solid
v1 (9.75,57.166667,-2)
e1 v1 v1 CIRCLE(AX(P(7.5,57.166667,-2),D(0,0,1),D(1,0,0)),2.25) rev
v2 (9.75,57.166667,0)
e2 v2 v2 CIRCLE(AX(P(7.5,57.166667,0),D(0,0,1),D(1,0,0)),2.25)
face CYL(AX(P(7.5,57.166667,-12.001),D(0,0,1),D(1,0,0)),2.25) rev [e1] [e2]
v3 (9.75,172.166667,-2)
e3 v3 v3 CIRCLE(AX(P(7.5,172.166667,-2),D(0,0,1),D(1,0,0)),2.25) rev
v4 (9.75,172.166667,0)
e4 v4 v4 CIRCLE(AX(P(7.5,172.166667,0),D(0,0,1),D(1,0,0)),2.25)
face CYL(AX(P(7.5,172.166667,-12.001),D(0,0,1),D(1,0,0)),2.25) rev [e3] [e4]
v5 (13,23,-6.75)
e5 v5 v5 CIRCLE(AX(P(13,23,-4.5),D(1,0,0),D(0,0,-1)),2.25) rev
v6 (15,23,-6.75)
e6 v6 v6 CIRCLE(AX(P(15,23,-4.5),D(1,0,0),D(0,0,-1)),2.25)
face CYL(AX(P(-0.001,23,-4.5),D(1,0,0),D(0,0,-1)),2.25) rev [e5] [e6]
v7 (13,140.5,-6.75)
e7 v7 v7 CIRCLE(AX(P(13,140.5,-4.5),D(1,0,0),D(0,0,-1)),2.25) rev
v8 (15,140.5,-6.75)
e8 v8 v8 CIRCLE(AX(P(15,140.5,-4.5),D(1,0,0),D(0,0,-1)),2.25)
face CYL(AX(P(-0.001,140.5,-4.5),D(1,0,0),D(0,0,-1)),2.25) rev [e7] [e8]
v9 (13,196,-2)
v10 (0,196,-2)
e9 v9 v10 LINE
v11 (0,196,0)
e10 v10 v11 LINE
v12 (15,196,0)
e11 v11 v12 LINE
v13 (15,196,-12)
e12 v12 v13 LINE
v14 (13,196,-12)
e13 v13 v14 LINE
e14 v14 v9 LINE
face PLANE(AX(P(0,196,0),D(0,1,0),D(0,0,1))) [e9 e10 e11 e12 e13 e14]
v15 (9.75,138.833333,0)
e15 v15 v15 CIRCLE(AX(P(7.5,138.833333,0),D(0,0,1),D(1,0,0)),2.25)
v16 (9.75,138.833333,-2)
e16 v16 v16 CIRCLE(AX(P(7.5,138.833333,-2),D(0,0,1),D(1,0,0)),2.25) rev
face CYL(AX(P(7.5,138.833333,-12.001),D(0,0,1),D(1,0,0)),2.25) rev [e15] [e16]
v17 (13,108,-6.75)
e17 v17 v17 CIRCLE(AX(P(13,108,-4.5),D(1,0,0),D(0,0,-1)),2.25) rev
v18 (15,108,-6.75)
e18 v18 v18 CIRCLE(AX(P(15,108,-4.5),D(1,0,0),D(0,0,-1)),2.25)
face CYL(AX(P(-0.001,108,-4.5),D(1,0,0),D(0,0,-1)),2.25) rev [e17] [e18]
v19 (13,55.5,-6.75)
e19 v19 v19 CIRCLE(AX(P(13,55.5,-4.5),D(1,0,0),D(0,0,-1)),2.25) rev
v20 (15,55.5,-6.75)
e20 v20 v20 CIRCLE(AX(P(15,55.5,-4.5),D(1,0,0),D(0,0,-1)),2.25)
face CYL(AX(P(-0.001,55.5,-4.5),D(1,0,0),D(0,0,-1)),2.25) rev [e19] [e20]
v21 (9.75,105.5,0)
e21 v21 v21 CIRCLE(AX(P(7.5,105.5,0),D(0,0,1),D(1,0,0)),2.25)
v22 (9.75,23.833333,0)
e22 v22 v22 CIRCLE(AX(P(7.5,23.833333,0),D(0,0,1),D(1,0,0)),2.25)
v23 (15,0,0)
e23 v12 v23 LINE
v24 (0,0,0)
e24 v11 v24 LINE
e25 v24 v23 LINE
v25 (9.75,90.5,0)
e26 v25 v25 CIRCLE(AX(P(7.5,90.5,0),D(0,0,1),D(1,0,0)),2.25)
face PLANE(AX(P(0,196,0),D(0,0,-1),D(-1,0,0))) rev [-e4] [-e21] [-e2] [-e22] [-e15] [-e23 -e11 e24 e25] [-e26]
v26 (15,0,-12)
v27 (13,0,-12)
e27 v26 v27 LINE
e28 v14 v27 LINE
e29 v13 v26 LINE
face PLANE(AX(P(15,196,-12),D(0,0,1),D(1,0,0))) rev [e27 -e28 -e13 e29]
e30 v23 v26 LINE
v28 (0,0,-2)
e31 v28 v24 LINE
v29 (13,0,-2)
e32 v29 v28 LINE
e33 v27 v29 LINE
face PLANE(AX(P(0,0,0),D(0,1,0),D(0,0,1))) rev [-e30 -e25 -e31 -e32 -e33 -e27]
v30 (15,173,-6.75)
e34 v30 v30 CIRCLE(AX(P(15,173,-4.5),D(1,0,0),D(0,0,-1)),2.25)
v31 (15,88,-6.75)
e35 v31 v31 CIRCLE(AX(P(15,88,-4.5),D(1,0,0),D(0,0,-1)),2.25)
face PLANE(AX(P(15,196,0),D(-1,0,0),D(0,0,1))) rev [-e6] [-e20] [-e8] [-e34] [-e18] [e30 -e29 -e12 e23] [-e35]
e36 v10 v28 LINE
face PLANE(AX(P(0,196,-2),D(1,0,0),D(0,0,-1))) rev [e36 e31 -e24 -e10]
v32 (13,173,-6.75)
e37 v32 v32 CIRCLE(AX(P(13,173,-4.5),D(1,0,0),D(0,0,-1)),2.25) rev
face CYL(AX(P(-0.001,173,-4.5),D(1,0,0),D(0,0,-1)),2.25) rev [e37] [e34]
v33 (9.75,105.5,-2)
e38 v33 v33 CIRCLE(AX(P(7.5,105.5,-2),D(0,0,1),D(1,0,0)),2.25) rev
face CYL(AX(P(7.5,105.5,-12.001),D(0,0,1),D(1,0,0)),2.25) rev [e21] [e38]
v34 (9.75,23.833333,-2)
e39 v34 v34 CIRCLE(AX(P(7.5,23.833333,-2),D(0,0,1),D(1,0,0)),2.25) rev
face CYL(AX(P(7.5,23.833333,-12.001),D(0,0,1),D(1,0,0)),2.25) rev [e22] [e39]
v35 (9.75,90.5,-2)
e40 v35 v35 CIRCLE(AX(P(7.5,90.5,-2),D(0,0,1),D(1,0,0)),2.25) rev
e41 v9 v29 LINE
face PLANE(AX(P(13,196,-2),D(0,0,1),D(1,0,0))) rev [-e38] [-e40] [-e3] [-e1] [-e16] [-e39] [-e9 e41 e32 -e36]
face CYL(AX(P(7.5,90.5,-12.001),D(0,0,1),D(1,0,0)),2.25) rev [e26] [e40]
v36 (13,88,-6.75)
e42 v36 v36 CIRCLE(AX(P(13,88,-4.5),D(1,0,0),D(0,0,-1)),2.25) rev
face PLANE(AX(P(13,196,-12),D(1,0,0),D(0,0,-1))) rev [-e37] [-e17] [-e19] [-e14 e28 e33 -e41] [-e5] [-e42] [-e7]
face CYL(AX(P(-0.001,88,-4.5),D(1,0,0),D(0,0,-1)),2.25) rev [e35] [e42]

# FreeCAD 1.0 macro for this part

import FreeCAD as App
import Part
import Sketcher
from FreeCAD import Vector


def add_polygon(sketch, points):
    """Adds a closed chain of lines whose ends are joined by coincident constraints."""
    first, n = sketch.GeometryCount, len(points)
    for a, b in zip(points, points[1:] + points[:1]):
        sketch.addGeometry(Part.LineSegment(App.Vector(*a, 0), App.Vector(*b, 0)), False)
    for i in range(n):
        sketch.addConstraint(Sketcher.Constraint("Coincident", first + i, 2, first + (i + 1) % n, 1))

doc = App.newDocument("Part")
body = doc.addObject("PartDesign::Body", "Body")

sketch1 = body.newObject("Sketcher::SketchObject", "Sketch")
sketch1.AttachmentSupport = (doc.getObject("XZ_Plane"), [""])
sketch1.MapMode = "FlatFace"
add_polygon(sketch1, [(0, 0), (15, 0), (15, -12), (13, -12), (13, -2), (0, -2)])
sketch1.addConstraint(Sketcher.Constraint("Horizontal", 0))
sketch1.addConstraint(Sketcher.Constraint("Vertical", 1))
sketch1.addConstraint(Sketcher.Constraint("Horizontal", 2))
sketch1.addConstraint(Sketcher.Constraint("Vertical", 3))
sketch1.addConstraint(Sketcher.Constraint("Horizontal", 4))
sketch1.addConstraint(Sketcher.Constraint("Vertical", 5))
sketch1.addConstraint(Sketcher.Constraint("Coincident", 5, 2, -1, 1))
sketch1.addConstraint(Sketcher.Constraint("Equal", 2, 5))
sketch1.addConstraint(Sketcher.Constraint("DistanceX", 0, 1, 0, 2, 15.0))
sketch1.addConstraint(Sketcher.Constraint("DistanceX", 2, 2, 2, 1, 2.0))
sketch1.addConstraint(Sketcher.Constraint("DistanceY", 1, 2, 1, 1, 12.0))
pad1 = body.newObject("PartDesign::Pad", "Pad")
pad1.Profile = sketch1
pad1.Length = 196
pad1.Reversed = True

sketch2 = body.newObject("Sketcher::SketchObject", "Sketch001")
sketch2.AttachmentSupport = (doc.getObject("YZ_Plane"), [""])
sketch2.MapMode = "FlatFace"
sketch2.AttachmentOffset = App.Placement(Vector(0, 0, 15), App.Rotation())
sketch2.addGeometry(Part.Circle(Vector(23, -4.5, 0), Vector(0, 0, 1), 2.2), False)
sketch2.addConstraint(Sketcher.Constraint("Diameter", 0, 4.5))
sketch2.addConstraint(Sketcher.Constraint("DistanceX", -1, 1, 0, 3, 23.0))
sketch2.addConstraint(Sketcher.Constraint("DistanceY", 0, 3, -1, 1, 4.5))
pocket1 = body.newObject("PartDesign::Pocket", "Pocket")
pocket1.Profile = sketch2
pocket1.Type = "UpToFirst"

sketch3 = body.newObject("Sketcher::SketchObject", "Sketch002")
sketch3.AttachmentSupport = (doc.getObject("YZ_Plane"), [""])
sketch3.MapMode = "FlatFace"
sketch3.AttachmentOffset = App.Placement(Vector(0, 0, 15), App.Rotation())
sketch3.addGeometry(Part.Circle(Vector(55.5, -4.5, 0), Vector(0, 0, 1), 2.2), False)
sketch3.addConstraint(Sketcher.Constraint("Diameter", 0, 4.5))
sketch3.addConstraint(Sketcher.Constraint("DistanceX", -1, 1, 0, 3, 55.5))
sketch3.addConstraint(Sketcher.Constraint("DistanceY", 0, 3, -1, 1, 4.5))
pocket2 = body.newObject("PartDesign::Pocket", "Pocket001")
pocket2.Profile = sketch3
pocket2.Type = "UpToFirst"

sketch4 = body.newObject("Sketcher::SketchObject", "Sketch003")
sketch4.AttachmentSupport = (doc.getObject("YZ_Plane"), [""])
sketch4.MapMode = "FlatFace"
sketch4.AttachmentOffset = App.Placement(Vector(0, 0, 15), App.Rotation())
sketch4.addGeometry(Part.Circle(Vector(88, -4.5, 0), Vector(0, 0, 1), 2.2), False)
sketch4.addConstraint(Sketcher.Constraint("Diameter", 0, 4.5))
sketch4.addConstraint(Sketcher.Constraint("DistanceX", -1, 1, 0, 3, 88.0))
sketch4.addConstraint(Sketcher.Constraint("DistanceY", 0, 3, -1, 1, 4.5))
pocket3 = body.newObject("PartDesign::Pocket", "Pocket002")
pocket3.Profile = sketch4
pocket3.Type = "UpToFirst"

sketch5 = body.newObject("Sketcher::SketchObject", "Sketch004")
sketch5.AttachmentSupport = (doc.getObject("YZ_Plane"), [""])
sketch5.MapMode = "FlatFace"
sketch5.AttachmentOffset = App.Placement(Vector(0, 0, 15), App.Rotation())
sketch5.addGeometry(Part.Circle(Vector(108, -4.5, 0), Vector(0, 0, 1), 2.2), False)
sketch5.addConstraint(Sketcher.Constraint("Diameter", 0, 4.5))
sketch5.addConstraint(Sketcher.Constraint("DistanceX", -1, 1, 0, 3, 108.0))
sketch5.addConstraint(Sketcher.Constraint("DistanceY", 0, 3, -1, 1, 4.5))
pocket4 = body.newObject("PartDesign::Pocket", "Pocket003")
pocket4.Profile = sketch5
pocket4.Type = "UpToFirst"

sketch6 = body.newObject("Sketcher::SketchObject", "Sketch005")
sketch6.AttachmentSupport = (doc.getObject("YZ_Plane"), [""])
sketch6.MapMode = "FlatFace"
sketch6.AttachmentOffset = App.Placement(Vector(0, 0, 15), App.Rotation())
sketch6.addGeometry(Part.Circle(Vector(140.5, -4.5, 0), Vector(0, 0, 1), 2.2), False)
sketch6.addConstraint(Sketcher.Constraint("Diameter", 0, 4.5))
sketch6.addConstraint(Sketcher.Constraint("DistanceX", -1, 1, 0, 3, 140.5))
sketch6.addConstraint(Sketcher.Constraint("DistanceY", 0, 3, -1, 1, 4.5))
pocket5 = body.newObject("PartDesign::Pocket", "Pocket004")
pocket5.Profile = sketch6
pocket5.Type = "UpToFirst"

sketch7 = body.newObject("Sketcher::SketchObject", "Sketch006")
sketch7.AttachmentSupport = (doc.getObject("YZ_Plane"), [""])
sketch7.MapMode = "FlatFace"
sketch7.AttachmentOffset = App.Placement(Vector(0, 0, 15), App.Rotation())
sketch7.addGeometry(Part.Circle(Vector(173, -4.5, 0), Vector(0, 0, 1), 2.2), False)
sketch7.addConstraint(Sketcher.Constraint("Diameter", 0, 4.5))
sketch7.addConstraint(Sketcher.Constraint("DistanceX", -1, 1, 0, 3, 173.0))
sketch7.addConstraint(Sketcher.Constraint("DistanceY", 0, 3, -1, 1, 4.5))
pocket6 = body.newObject("PartDesign::Pocket", "Pocket005")
pocket6.Profile = sketch7
pocket6.Type = "UpToFirst"

sketch8 = body.newObject("Sketcher::SketchObject", "Sketch007")
sketch8.AttachmentSupport = (doc.getObject("XY_Plane"), [""])
sketch8.MapMode = "FlatFace"
sketch8.addGeometry(Part.Circle(Vector(7.5, 23.8, 0), Vector(0, 0, 1), 2.2), False)
sketch8.addConstraint(Sketcher.Constraint("Diameter", 0, 4.5))
sketch8.addConstraint(Sketcher.Constraint("DistanceX", -1, 1, 0, 3, 7.5))
sketch8.addConstraint(Sketcher.Constraint("DistanceY", -1, 1, 0, 3, 23.833333))
pocket7 = body.newObject("PartDesign::Pocket", "Pocket006")
pocket7.Profile = sketch8
pocket7.Type = "UpToFirst"

sketch9 = body.newObject("Sketcher::SketchObject", "Sketch008")
sketch9.AttachmentSupport = (doc.getObject("XY_Plane"), [""])
sketch9.MapMode = "FlatFace"
sketch9.addGeometry(Part.Circle(Vector(7.5, 57.2, 0), Vector(0, 0, 1), 2.2), False)
sketch9.addConstraint(Sketcher.Constraint("Diameter", 0, 4.5))
sketch9.addConstraint(Sketcher.Constraint("DistanceX", -1, 1, 0, 3, 7.5))
sketch9.addConstraint(Sketcher.Constraint("DistanceY", -1, 1, 0, 3, 57.166667))
pocket8 = body.newObject("PartDesign::Pocket", "Pocket007")
pocket8.Profile = sketch9
pocket8.Type = "UpToFirst"

sketch10 = body.newObject("Sketcher::SketchObject", "Sketch009")
sketch10.AttachmentSupport = (doc.getObject("XY_Plane"), [""])
sketch10.MapMode = "FlatFace"
sketch10.addGeometry(Part.Circle(Vector(7.5, 90.5, 0), Vector(0, 0, 1), 2.2), False)
sketch10.addConstraint(Sketcher.Constraint("Diameter", 0, 4.5))
sketch10.addConstraint(Sketcher.Constraint("DistanceX", -1, 1, 0, 3, 7.5))
sketch10.addConstraint(Sketcher.Constraint("DistanceY", -1, 1, 0, 3, 90.5))
pocket9 = body.newObject("PartDesign::Pocket", "Pocket008")
pocket9.Profile = sketch10
pocket9.Type = "UpToFirst"

sketch11 = body.newObject("Sketcher::SketchObject", "Sketch010")
sketch11.AttachmentSupport = (doc.getObject("XY_Plane"), [""])
sketch11.MapMode = "FlatFace"
sketch11.addGeometry(Part.Circle(Vector(7.5, 105.5, 0), Vector(0, 0, 1), 2.2), False)
sketch11.addConstraint(Sketcher.Constraint("Diameter", 0, 4.5))
sketch11.addConstraint(Sketcher.Constraint("DistanceX", -1, 1, 0, 3, 7.5))
sketch11.addConstraint(Sketcher.Constraint("DistanceY", -1, 1, 0, 3, 105.5))
pocket10 = body.newObject("PartDesign::Pocket", "Pocket009")
pocket10.Profile = sketch11
pocket10.Type = "UpToFirst"

sketch12 = body.newObject("Sketcher::SketchObject", "Sketch011")
sketch12.AttachmentSupport = (doc.getObject("XY_Plane"), [""])
sketch12.MapMode = "FlatFace"
sketch12.addGeometry(Part.Circle(Vector(7.5, 138.8, 0), Vector(0, 0, 1), 2.2), False)
sketch12.addConstraint(Sketcher.Constraint("Diameter", 0, 4.5))
sketch12.addConstraint(Sketcher.Constraint("DistanceX", -1, 1, 0, 3, 7.5))
sketch12.addConstraint(Sketcher.Constraint("DistanceY", -1, 1, 0, 3, 138.833333))
pocket11 = body.newObject("PartDesign::Pocket", "Pocket010")
pocket11.Profile = sketch12
pocket11.Type = "UpToFirst"

sketch13 = body.newObject("Sketcher::SketchObject", "Sketch012")
sketch13.AttachmentSupport = (doc.getObject("XY_Plane"), [""])
sketch13.MapMode = "FlatFace"
sketch13.addGeometry(Part.Circle(Vector(7.5, 172.2, 0), Vector(0, 0, 1), 2.2), False)
sketch13.addConstraint(Sketcher.Constraint("Diameter", 0, 4.5))
sketch13.addConstraint(Sketcher.Constraint("DistanceX", -1, 1, 0, 3, 7.5))
sketch13.addConstraint(Sketcher.Constraint("DistanceY", -1, 1, 0, 3, 172.166667))
pocket12 = body.newObject("PartDesign::Pocket", "Pocket011")
pocket12.Profile = sketch13
pocket12.Type = "UpToFirst"

doc.recompute()
